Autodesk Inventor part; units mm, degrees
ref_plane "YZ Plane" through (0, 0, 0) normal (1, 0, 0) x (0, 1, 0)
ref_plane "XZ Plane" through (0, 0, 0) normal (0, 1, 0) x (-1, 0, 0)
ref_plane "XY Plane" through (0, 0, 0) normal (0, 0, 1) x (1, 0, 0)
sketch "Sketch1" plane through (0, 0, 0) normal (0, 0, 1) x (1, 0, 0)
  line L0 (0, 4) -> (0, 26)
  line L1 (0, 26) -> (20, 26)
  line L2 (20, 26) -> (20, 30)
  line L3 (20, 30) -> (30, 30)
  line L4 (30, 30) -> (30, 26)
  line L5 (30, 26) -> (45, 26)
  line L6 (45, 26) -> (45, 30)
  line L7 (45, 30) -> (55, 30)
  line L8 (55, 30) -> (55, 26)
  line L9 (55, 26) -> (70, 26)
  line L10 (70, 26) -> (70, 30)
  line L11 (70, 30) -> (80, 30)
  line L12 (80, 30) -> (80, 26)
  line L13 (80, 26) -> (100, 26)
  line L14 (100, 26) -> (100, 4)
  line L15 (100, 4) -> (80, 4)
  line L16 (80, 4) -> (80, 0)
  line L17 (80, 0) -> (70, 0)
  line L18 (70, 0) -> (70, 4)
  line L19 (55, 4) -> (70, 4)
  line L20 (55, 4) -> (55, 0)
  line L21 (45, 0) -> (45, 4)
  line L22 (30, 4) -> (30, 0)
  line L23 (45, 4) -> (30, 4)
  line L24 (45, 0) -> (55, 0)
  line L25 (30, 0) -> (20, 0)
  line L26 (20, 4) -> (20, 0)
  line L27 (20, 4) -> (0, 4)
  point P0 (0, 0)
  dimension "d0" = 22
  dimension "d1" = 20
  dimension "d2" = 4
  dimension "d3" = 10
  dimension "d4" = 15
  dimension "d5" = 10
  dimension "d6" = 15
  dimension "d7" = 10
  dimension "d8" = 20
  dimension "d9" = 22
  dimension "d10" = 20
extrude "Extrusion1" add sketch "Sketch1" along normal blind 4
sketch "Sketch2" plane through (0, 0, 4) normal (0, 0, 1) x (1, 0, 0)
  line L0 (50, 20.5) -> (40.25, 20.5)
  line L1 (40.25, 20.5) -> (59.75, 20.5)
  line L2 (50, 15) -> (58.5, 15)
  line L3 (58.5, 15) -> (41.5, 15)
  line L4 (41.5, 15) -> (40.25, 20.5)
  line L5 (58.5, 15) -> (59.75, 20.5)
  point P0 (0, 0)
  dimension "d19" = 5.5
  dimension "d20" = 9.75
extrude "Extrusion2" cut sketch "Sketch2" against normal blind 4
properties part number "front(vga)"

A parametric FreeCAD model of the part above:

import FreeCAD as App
import Part
import Sketcher

V = App.Vector
Q = App.Units.Quantity


def add_polygon(sketch, points):
    """Adds a closed chain of lines whose ends are joined by coincident constraints."""
    first, n = sketch.GeometryCount, len(points)
    for a, b in zip(points, points[1:] + points[:1]):
        sketch.addGeometry(Part.LineSegment(App.Vector(*a, 0), App.Vector(*b, 0)), False)
    for i in range(n):
        sketch.addConstraint(Sketcher.Constraint("Coincident", first + i, 2, first + (i + 1) % n, 1))

doc = App.newDocument("Part")
params = doc.addObject("Spreadsheet::Sheet", "Params")
for row, (alias, value) in enumerate([
    ("sketch1_width", "20 mm"),
    ("sketch1_width2", "10 mm"),
    ("sketch1_width3", "15 mm"),
    ("sketch1_height", "22 mm"),
    ("sketch1_height2", "4 mm"),
    ("pad1_length", "4 mm"),
    ("sketch2_width", "17 mm"),
    ("sketch2_width2", "19.5 mm"),
    ("pocket1_length", "4 mm"),
], start=1):
    params.set(f"A{row}", alias)
    params.set(f"B{row}", "=" + value)
    params.setAlias(f"B{row}", alias)

body = doc.addObject("PartDesign::Body", "Body")

sketch1 = doc.addObject("Sketcher::SketchObject", "Sketch")
body.addObject(sketch1)
sketch1.AttachmentSupport = (doc.XY_Plane, [""])
sketch1.MapMode = "FlatFace"
add_polygon(sketch1, [(0, 26), (0, 4), (20, 4), (20, 0), (30, 0), (30, 4), (45, 4), (45, 0), (55, 0), (55, 4), (70, 4), (70, 0), (80, 0), (80, 4), (100, 4), (100, 26), (80, 26), (80, 30), (70, 30), (70, 26), (55, 26), (55, 30), (45, 30), (45, 26), (30, 26), (30, 30), (20, 30), (20, 26)])
sketch1.addConstraint([
    Sketcher.Constraint("Vertical", 0),
    Sketcher.Constraint("Horizontal", 1),
    Sketcher.Constraint("Vertical", 2),
    Sketcher.Constraint("Horizontal", 3),
    Sketcher.Constraint("Vertical", 4),
    Sketcher.Constraint("Horizontal", 5),
    Sketcher.Constraint("Vertical", 6),
    Sketcher.Constraint("Horizontal", 7),
    Sketcher.Constraint("Vertical", 8),
    Sketcher.Constraint("Horizontal", 9),
    Sketcher.Constraint("Vertical", 10),
    Sketcher.Constraint("Horizontal", 11),
    Sketcher.Constraint("Vertical", 12),
    Sketcher.Constraint("Horizontal", 13),
    Sketcher.Constraint("Vertical", 14),
    Sketcher.Constraint("Horizontal", 15),
    Sketcher.Constraint("Vertical", 16),
    Sketcher.Constraint("Horizontal", 17),
    Sketcher.Constraint("Vertical", 18),
    Sketcher.Constraint("Horizontal", 19),
    Sketcher.Constraint("Vertical", 20),
    Sketcher.Constraint("Horizontal", 21),
    Sketcher.Constraint("Vertical", 22),
    Sketcher.Constraint("Horizontal", 23),
    Sketcher.Constraint("Vertical", 24),
    Sketcher.Constraint("Horizontal", 25),
    Sketcher.Constraint("Vertical", 26),
    Sketcher.Constraint("Horizontal", 27),
    Sketcher.Constraint("PointOnObject", 0, 2, -2),
    Sketcher.Constraint("PointOnObject", 2, 2, -1),
    Sketcher.Constraint("PointOnObject", 6, 2, -1),
    Sketcher.Constraint("PointOnObject", 10, 2, -1),
    Sketcher.Constraint("Horizontal", 1, 2, 4, 2),
    Sketcher.Constraint("Horizontal", 5, 2, 8, 2),
    Sketcher.Constraint("Horizontal", 9, 2, 12, 2),
    Sketcher.Constraint("Horizontal", 15, 2, 18, 2),
    Sketcher.Constraint("Horizontal", 17, 2, 20, 2),
    Sketcher.Constraint("Horizontal", 19, 2, 22, 2),
    Sketcher.Constraint("Horizontal", 21, 2, 24, 2),
    Sketcher.Constraint("Horizontal", 23, 2, 26, 2),
    Sketcher.Constraint("Vertical", 12, 2, 15, 2),
    Sketcher.Constraint("Vertical", 10, 2, 17, 2),
    Sketcher.Constraint("Vertical", 8, 2, 19, 2),
    Sketcher.Constraint("Vertical", 6, 2, 21, 2),
    Sketcher.Constraint("Vertical", 4, 2, 23, 2),
    Sketcher.Constraint("Vertical", 2, 2, 25, 2),
    Sketcher.Constraint("Equal", 3, 7),
    Sketcher.Constraint("Equal", 5, 9),
    Sketcher.Constraint("Equal", 7, 11),
    Sketcher.Constraint("Equal", 1, 13),
    Sketcher.Constraint("Equal", 12, 16),
    Sketcher.Constraint("DistanceX", 1, 1, 1, 2, Q("20 mm")),
    Sketcher.Constraint("DistanceX", 3, 1, 3, 2, Q("10 mm")),
    Sketcher.Constraint("DistanceX", 5, 1, 5, 2, Q("15 mm")),
    Sketcher.Constraint("DistanceY", 0, 2, 0, 1, Q("22 mm")),
    Sketcher.Constraint("DistanceY", 2, 2, 2, 1, Q("4 mm")),
])
sketch1.setExpression("Constraints[79]", "Params.sketch1_width")
sketch1.setExpression("Constraints[80]", "Params.sketch1_width2")
sketch1.setExpression("Constraints[81]", "Params.sketch1_width3")
sketch1.setExpression("Constraints[82]", "Params.sketch1_height")
sketch1.setExpression("Constraints[83]", "Params.sketch1_height2")
pad1 = doc.addObject("PartDesign::Pad", "Pad")
body.addObject(pad1)
pad1.Profile = sketch1
pad1.setExpression("Length", "Params.pad1_length")

sketch2 = doc.addObject("Sketcher::SketchObject", "Sketch001")
body.addObject(sketch2)
sketch2.AttachmentSupport = (doc.XY_Plane, [""])
sketch2.MapMode = "FlatFace"
sketch2.AttachmentOffset = App.Placement(V(0, 0, 4), App.Rotation())
add_polygon(sketch2, [(60, 20), (40, 20), (42, 15), (58, 15)])
sketch2.addConstraint([
    Sketcher.Constraint("Horizontal", 0),
    Sketcher.Constraint("Horizontal", 2),
    Sketcher.Constraint("Equal", 1, 3),
    Sketcher.Constraint("DistanceY", 1, 2, 0, 2, Q("5.5 mm")),
    Sketcher.Constraint("DistanceX", 2, 1, 2, 2, Q("17 mm")),
    Sketcher.Constraint("DistanceX", 0, 2, 0, 1, Q("19.5 mm")),
    Sketcher.Constraint("DistanceY", -1, 1, 1, 2, Q("15 mm")),
    Sketcher.Constraint("DistanceX", -1, 1, 1, 2, Q("41.5 mm")),
])
sketch2.setExpression("Constraints[8]", "Params.sketch2_width")
sketch2.setExpression("Constraints[9]", "Params.sketch2_width2")
pocket1 = doc.addObject("PartDesign::Pocket", "Pocket")
body.addObject(pocket1)
pocket1.Profile = sketch2
pocket1.setExpression("Length", "Params.pocket1_length")

doc.recompute()
